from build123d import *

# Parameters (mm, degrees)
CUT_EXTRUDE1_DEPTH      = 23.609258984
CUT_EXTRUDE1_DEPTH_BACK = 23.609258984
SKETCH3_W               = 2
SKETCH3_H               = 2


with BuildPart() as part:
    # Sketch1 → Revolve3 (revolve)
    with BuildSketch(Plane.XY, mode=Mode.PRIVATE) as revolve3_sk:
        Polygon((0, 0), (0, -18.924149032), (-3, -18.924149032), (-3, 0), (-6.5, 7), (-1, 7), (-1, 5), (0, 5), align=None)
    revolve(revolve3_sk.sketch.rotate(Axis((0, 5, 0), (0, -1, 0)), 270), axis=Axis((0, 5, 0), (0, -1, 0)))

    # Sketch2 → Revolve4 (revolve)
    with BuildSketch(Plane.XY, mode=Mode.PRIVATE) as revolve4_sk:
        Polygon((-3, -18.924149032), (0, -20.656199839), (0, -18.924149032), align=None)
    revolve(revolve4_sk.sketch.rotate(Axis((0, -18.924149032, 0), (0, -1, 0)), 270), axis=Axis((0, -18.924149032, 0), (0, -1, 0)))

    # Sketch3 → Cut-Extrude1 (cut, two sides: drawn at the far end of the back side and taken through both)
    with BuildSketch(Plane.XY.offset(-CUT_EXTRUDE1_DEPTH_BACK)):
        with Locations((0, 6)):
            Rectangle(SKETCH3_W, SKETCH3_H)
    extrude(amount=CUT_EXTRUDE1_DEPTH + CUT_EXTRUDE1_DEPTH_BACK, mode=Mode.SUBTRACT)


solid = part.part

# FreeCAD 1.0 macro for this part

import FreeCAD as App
import Part
import Sketcher
Q = App.Units.Quantity

doc = App.newDocument("Part")
body = doc.addObject("PartDesign::Body", "Body")

# Sketch on XY plane
sketch1 = body.newObject("Sketcher::SketchObject", "Sketch")
sketch1.AttachmentSupport = (doc.getObject("XY_Plane"), [""])
sketch1.MapMode = "FlatFace"
sketch1.addGeometry([
    Part.LineSegment(App.Vector(0, -18.9, 0), App.Vector(0, 5, 0)),  # 0
    Part.LineSegment(App.Vector(0, 5, 0), App.Vector(-1, 5, 0)),  # 1
    Part.LineSegment(App.Vector(-1, 5, 0), App.Vector(-1, 7, 0)),  # 2
    Part.LineSegment(App.Vector(-1, 7, 0), App.Vector(-6.5, 7, 0)),  # 3
    Part.LineSegment(App.Vector(-6.5, 7, 0), App.Vector(-3, 0, 0)),  # 4
    Part.LineSegment(App.Vector(-3, 0, 0), App.Vector(-3, -18.9, 0)),  # 5
    Part.LineSegment(App.Vector(-3, -18.9, 0), App.Vector(0, -18.9, 0)),  # 6
], False)
sketch1.addConstraint([
    Sketcher.Constraint("Coincident", 0, 2, 1, 1),
    Sketcher.Constraint("Coincident", 1, 2, 2, 1),
    Sketcher.Constraint("Coincident", 2, 2, 3, 1),
    Sketcher.Constraint("Coincident", 3, 2, 4, 1),
    Sketcher.Constraint("Coincident", 4, 2, 5, 1),
    Sketcher.Constraint("Coincident", 5, 2, 6, 1),
    Sketcher.Constraint("Coincident", 6, 2, 0, 1),
    Sketcher.Constraint("Vertical", 0),
    Sketcher.Constraint("Horizontal", 1),
    Sketcher.Constraint("Vertical", 2),
    Sketcher.Constraint("Horizontal", 3),
    Sketcher.Constraint("Vertical", 5),
    Sketcher.Constraint("Horizontal", 6),
    Sketcher.Constraint("PointOnObject", 0, 2, -2),
    Sketcher.Constraint("PointOnObject", 4, 2, -1),
    Sketcher.Constraint("DistanceX", 1, 2, 1, 1, 1.0),
    Sketcher.Constraint("DistanceX", 6, 1, 6, 2, 3.0),
    Sketcher.Constraint("DistanceY", 2, 1, 2, 2, 2.0),
    Sketcher.Constraint("DistanceX", 3, 2, 3, 1, 5.5),
    Sketcher.Constraint("DistanceY", -1, 1, 0, 2, 5.0),
    Sketcher.Constraint("DistanceY", 0, 1, 0, 2, 23.924149),
])
revolution = body.newObject("PartDesign::Revolution", "Revolution")
revolution.Profile = sketch1
revolution.ReferenceAxis = (sketch1, ["V_Axis"])
revolution.Angle = 360

# Sketch on XY plane
sketch2 = body.newObject("Sketcher::SketchObject", "Sketch001")
sketch2.AttachmentSupport = (doc.getObject("XY_Plane"), [""])
sketch2.MapMode = "FlatFace"
sketch2.addGeometry([
    Part.LineSegment(App.Vector(-3, -18.9, 0), App.Vector(0, -20.7, 0)),
    Part.LineSegment(App.Vector(0, -20.7, 0), App.Vector(0, -18.9, 0)),
    Part.LineSegment(App.Vector(0, -18.9, 0), App.Vector(-3, -18.9, 0)),
], False)
sketch2.addConstraint([
    Sketcher.Constraint("Coincident", 0, 2, 1, 1),
    Sketcher.Constraint("Coincident", 1, 2, 2, 1),
    Sketcher.Constraint("Coincident", 2, 2, 0, 1),
    Sketcher.Constraint("Vertical", 1),
    Sketcher.Constraint("Horizontal", 2),
    Sketcher.Constraint("PointOnObject", 0, 2, -2),
    Sketcher.Constraint("DistanceX", 2, 2, 2, 1, 3.0),
    Sketcher.Constraint("Angle", 0, Q("-30 deg")),
    Sketcher.Constraint("DistanceY", 0, 2, -1, 1, 20.6562),
])
revolution2 = body.newObject("PartDesign::Revolution", "Revolution001")
revolution2.Profile = sketch2
revolution2.ReferenceAxis = (sketch2, ["V_Axis"])
revolution2.Angle = 360

# Sketch on XY plane
sketch3 = body.newObject("Sketcher::SketchObject", "Sketch002")
sketch3.AttachmentSupport = (doc.getObject("XY_Plane"), [""])
sketch3.MapMode = "FlatFace"
sketch3.addGeometry([
    Part.LineSegment(App.Vector(-1, 7, 0), App.Vector(-1, 5, 0)),
    Part.LineSegment(App.Vector(-1, 5, 0), App.Vector(1, 5, 0)),
    Part.LineSegment(App.Vector(1, 5, 0), App.Vector(1, 7, 0)),
    Part.LineSegment(App.Vector(1, 7, 0), App.Vector(-1, 7, 0)),
], False)
sketch3.addConstraint([
    Sketcher.Constraint("Coincident", 0, 2, 1, 1),
    Sketcher.Constraint("Coincident", 1, 2, 2, 1),
    Sketcher.Constraint("Coincident", 2, 2, 3, 1),
    Sketcher.Constraint("Coincident", 3, 2, 0, 1),
    Sketcher.Constraint("Vertical", 0),
    Sketcher.Constraint("Horizontal", 1),
    Sketcher.Constraint("Vertical", 2),
    Sketcher.Constraint("Horizontal", 3),
    Sketcher.Constraint("Equal", 3, 0),
    Sketcher.Constraint("DistanceX", 1, 1, 1, 2, 2.0),
    Sketcher.Constraint("DistanceX", 0, 2, -1, 1, 1.0),
    Sketcher.Constraint("DistanceY", -1, 1, 0, 2, 5.0),
])
pocket1 = body.newObject("PartDesign::Pocket", "Pocket")
pocket1.Profile = sketch3
pocket1.Type = "ThroughAll"
pocket1.Midplane = True

doc.recompute()
